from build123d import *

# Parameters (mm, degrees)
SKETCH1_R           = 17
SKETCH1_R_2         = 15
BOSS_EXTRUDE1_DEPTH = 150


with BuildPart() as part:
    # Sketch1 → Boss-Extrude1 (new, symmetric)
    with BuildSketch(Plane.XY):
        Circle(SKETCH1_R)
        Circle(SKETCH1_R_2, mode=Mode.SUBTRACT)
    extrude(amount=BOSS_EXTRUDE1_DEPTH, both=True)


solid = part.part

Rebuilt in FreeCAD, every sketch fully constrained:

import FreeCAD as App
import Part
import Sketcher
from FreeCAD import Vector
Q = App.Units.Quantity

doc = App.newDocument("Part")
params = doc.addObject("Spreadsheet::Sheet", "Params")
for row, (alias, value) in enumerate([
    ("sketch1_diameter", "34 mm"),
    ("sketch1_diameter2", "30 mm"),
    ("pad1_length", "300 mm"),
], start=1):
    params.set(f"A{row}", alias)
    params.set(f"B{row}", "=" + value)
    params.setAlias(f"B{row}", alias)

body = doc.addObject("PartDesign::Body", "Body")

# Sketch on XY plane
sketch1 = body.newObject("Sketcher::SketchObject", "Sketch")
sketch1.AttachmentSupport = (doc.getObject("XY_Plane"), [""])
sketch1.MapMode = "FlatFace"
sketch1.addGeometry(Part.Circle(Vector(0, 0, 0), Vector(0, 0, 1), 17), False)
sketch1.addGeometry(Part.Circle(Vector(0, 0, 0), Vector(0, 0, 1), 15), False)
sketch1.addConstraint(Sketcher.Constraint("Coincident", 0, 3, -1, 1))
sketch1.addConstraint(Sketcher.Constraint("Coincident", 1, 3, -1, 1))
sketch1.addConstraint(Sketcher.Constraint("Diameter", 0, Q("34 mm")))
sketch1.addConstraint(Sketcher.Constraint("Diameter", 1, Q("30 mm")))
sketch1.setExpression("Constraints[2]", "Params.sketch1_diameter")
sketch1.setExpression("Constraints[3]", "Params.sketch1_diameter2")
pad1 = body.newObject("PartDesign::Pad", "Pad")
pad1.Profile = sketch1
pad1.setExpression("Length", "Params.pad1_length")
pad1.Midplane = True

doc.recompute()
